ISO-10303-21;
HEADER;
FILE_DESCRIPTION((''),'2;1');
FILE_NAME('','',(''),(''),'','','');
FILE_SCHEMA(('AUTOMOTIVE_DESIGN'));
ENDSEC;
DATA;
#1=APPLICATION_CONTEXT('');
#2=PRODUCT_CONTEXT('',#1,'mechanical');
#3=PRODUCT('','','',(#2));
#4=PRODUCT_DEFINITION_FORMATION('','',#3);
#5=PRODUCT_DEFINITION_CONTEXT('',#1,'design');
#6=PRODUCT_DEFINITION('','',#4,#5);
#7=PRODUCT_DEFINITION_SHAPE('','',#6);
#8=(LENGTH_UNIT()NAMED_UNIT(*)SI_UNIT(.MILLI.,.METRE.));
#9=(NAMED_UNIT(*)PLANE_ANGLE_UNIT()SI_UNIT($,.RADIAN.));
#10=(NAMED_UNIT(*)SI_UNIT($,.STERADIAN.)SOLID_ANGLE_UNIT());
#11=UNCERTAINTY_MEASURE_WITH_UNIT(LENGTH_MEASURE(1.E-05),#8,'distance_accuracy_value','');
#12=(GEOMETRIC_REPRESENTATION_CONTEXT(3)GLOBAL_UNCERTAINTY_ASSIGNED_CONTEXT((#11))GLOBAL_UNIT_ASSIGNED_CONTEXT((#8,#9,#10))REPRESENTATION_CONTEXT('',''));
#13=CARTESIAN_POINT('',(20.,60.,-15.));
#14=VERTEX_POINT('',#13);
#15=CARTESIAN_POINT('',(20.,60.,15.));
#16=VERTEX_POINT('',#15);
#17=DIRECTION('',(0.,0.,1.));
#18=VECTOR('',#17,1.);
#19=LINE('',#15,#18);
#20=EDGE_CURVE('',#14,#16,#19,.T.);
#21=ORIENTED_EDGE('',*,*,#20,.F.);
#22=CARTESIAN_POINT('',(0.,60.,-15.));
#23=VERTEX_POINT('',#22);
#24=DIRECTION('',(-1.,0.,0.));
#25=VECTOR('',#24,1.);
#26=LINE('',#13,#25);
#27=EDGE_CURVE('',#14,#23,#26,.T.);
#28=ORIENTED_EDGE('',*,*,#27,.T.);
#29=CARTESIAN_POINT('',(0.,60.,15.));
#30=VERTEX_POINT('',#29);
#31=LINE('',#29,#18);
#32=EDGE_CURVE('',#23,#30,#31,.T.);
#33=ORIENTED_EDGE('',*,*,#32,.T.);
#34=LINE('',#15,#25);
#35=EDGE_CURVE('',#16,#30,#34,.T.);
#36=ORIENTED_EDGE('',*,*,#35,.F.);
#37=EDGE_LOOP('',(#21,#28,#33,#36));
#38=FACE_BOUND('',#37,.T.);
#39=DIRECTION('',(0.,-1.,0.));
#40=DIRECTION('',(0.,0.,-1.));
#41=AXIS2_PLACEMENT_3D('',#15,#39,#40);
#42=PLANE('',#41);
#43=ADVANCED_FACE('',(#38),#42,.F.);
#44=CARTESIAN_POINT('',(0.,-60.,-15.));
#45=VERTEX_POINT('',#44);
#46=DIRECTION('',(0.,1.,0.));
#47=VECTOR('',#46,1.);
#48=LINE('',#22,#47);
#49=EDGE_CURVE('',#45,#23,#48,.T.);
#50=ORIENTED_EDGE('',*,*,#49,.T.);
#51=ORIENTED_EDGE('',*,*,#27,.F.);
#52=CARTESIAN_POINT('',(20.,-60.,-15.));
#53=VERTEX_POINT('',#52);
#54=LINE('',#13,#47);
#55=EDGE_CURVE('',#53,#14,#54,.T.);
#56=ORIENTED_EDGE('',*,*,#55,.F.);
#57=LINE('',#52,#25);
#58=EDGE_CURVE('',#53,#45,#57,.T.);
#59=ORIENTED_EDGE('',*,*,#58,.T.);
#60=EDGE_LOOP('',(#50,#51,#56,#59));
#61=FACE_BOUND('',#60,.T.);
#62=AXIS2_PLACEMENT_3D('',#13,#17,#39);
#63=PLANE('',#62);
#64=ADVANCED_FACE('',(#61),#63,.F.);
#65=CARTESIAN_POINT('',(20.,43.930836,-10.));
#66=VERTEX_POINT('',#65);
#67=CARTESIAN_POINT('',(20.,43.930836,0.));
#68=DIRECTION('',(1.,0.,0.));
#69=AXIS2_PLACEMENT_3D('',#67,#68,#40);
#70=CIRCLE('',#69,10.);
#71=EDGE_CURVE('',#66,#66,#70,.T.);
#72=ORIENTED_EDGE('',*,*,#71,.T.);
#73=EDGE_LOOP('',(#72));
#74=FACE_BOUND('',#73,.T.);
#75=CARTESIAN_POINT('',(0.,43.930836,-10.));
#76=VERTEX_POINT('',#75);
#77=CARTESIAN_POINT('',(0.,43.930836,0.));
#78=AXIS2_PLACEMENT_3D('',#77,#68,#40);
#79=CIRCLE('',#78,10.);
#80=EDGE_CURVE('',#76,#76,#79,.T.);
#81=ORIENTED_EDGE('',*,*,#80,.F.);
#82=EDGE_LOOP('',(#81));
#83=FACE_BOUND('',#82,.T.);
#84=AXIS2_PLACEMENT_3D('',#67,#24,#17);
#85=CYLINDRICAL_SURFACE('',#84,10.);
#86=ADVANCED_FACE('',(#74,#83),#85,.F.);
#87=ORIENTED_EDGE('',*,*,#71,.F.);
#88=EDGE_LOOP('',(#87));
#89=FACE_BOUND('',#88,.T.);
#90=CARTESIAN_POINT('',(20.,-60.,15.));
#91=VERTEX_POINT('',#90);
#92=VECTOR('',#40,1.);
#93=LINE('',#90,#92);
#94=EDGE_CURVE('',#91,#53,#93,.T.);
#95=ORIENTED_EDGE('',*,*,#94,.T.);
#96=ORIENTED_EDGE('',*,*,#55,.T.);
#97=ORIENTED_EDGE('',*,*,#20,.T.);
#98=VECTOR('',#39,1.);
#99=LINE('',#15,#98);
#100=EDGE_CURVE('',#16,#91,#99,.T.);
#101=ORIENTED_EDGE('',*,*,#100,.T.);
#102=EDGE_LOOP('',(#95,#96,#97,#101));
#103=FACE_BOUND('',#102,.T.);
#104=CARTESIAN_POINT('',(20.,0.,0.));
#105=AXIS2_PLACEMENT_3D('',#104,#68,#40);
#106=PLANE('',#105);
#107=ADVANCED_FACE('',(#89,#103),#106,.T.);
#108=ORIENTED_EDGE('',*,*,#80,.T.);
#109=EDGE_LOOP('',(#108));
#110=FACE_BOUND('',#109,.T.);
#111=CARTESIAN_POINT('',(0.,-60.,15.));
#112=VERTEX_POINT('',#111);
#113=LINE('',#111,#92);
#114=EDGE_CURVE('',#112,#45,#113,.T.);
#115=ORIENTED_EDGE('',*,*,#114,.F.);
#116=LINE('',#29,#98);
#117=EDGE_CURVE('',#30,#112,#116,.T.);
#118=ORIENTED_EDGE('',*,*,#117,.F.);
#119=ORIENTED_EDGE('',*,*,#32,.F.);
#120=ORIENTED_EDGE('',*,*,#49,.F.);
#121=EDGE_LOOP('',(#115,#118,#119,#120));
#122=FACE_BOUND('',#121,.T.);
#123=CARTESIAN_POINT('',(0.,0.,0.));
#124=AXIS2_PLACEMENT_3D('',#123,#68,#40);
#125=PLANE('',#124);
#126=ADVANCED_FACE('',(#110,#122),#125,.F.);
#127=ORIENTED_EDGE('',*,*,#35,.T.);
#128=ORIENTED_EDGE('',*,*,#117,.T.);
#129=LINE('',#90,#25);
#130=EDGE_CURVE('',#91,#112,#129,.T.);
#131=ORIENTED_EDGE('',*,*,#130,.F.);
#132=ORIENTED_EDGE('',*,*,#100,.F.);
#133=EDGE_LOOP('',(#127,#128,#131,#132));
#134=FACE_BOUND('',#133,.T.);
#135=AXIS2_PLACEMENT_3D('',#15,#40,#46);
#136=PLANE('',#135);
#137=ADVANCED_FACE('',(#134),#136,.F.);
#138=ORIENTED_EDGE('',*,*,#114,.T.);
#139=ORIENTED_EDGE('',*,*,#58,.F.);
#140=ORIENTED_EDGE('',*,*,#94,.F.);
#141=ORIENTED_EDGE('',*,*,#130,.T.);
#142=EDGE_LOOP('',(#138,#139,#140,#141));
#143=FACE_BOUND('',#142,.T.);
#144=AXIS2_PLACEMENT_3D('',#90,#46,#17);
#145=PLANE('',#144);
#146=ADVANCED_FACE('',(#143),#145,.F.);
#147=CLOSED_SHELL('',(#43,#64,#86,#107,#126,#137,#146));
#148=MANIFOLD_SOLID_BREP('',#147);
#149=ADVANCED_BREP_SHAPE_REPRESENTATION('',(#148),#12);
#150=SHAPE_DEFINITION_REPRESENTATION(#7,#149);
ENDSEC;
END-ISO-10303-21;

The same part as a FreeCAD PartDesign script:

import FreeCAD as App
import Part
import Sketcher
from FreeCAD import Vector


def add_polygon(sketch, points):
    """Adds a closed chain of lines whose ends are joined by coincident constraints."""
    first, n = sketch.GeometryCount, len(points)
    for a, b in zip(points, points[1:] + points[:1]):
        sketch.addGeometry(Part.LineSegment(App.Vector(*a, 0), App.Vector(*b, 0)), False)
    for i in range(n):
        sketch.addConstraint(Sketcher.Constraint("Coincident", first + i, 2, first + (i + 1) % n, 1))

doc = App.newDocument("Part")
body = doc.addObject("PartDesign::Body", "Body")

# Sketch on YZ plane
sketch1 = body.newObject("Sketcher::SketchObject", "Sketch")
sketch1.AttachmentSupport = (doc.getObject("YZ_Plane"), [""])
sketch1.MapMode = "FlatFace"
add_polygon(sketch1, [(60, 15), (-60, 15), (-60, -15), (60, -15)])  # lines 0-3
sketch1.addGeometry(Part.Circle(Vector(43.930836, 0, 0), Vector(0, 0, 1), 10), False)  # 4
sketch1.addConstraint(Sketcher.Constraint("Horizontal", 0))
sketch1.addConstraint(Sketcher.Constraint("Vertical", 1))
sketch1.addConstraint(Sketcher.Constraint("Horizontal", 2))
sketch1.addConstraint(Sketcher.Constraint("Vertical", 3))
sketch1.addConstraint(Sketcher.Constraint("Symmetric", 0, 2, 2, 2, -1, 1))
sketch1.addConstraint(Sketcher.Constraint("PointOnObject", 4, 3, -1))
sketch1.addConstraint(Sketcher.Constraint("Diameter", 4, 20.0))
sketch1.addConstraint(Sketcher.Constraint("DistanceX", 0, 2, 0, 1, 120.0))
sketch1.addConstraint(Sketcher.Constraint("DistanceY", 1, 2, 1, 1, 30.0))
sketch1.addConstraint(Sketcher.Constraint("DistanceX", -1, 1, 4, 3, 43.930836))
pad1 = body.newObject("PartDesign::Pad", "Pad")
pad1.Profile = sketch1
pad1.Length = 20

doc.recompute()
